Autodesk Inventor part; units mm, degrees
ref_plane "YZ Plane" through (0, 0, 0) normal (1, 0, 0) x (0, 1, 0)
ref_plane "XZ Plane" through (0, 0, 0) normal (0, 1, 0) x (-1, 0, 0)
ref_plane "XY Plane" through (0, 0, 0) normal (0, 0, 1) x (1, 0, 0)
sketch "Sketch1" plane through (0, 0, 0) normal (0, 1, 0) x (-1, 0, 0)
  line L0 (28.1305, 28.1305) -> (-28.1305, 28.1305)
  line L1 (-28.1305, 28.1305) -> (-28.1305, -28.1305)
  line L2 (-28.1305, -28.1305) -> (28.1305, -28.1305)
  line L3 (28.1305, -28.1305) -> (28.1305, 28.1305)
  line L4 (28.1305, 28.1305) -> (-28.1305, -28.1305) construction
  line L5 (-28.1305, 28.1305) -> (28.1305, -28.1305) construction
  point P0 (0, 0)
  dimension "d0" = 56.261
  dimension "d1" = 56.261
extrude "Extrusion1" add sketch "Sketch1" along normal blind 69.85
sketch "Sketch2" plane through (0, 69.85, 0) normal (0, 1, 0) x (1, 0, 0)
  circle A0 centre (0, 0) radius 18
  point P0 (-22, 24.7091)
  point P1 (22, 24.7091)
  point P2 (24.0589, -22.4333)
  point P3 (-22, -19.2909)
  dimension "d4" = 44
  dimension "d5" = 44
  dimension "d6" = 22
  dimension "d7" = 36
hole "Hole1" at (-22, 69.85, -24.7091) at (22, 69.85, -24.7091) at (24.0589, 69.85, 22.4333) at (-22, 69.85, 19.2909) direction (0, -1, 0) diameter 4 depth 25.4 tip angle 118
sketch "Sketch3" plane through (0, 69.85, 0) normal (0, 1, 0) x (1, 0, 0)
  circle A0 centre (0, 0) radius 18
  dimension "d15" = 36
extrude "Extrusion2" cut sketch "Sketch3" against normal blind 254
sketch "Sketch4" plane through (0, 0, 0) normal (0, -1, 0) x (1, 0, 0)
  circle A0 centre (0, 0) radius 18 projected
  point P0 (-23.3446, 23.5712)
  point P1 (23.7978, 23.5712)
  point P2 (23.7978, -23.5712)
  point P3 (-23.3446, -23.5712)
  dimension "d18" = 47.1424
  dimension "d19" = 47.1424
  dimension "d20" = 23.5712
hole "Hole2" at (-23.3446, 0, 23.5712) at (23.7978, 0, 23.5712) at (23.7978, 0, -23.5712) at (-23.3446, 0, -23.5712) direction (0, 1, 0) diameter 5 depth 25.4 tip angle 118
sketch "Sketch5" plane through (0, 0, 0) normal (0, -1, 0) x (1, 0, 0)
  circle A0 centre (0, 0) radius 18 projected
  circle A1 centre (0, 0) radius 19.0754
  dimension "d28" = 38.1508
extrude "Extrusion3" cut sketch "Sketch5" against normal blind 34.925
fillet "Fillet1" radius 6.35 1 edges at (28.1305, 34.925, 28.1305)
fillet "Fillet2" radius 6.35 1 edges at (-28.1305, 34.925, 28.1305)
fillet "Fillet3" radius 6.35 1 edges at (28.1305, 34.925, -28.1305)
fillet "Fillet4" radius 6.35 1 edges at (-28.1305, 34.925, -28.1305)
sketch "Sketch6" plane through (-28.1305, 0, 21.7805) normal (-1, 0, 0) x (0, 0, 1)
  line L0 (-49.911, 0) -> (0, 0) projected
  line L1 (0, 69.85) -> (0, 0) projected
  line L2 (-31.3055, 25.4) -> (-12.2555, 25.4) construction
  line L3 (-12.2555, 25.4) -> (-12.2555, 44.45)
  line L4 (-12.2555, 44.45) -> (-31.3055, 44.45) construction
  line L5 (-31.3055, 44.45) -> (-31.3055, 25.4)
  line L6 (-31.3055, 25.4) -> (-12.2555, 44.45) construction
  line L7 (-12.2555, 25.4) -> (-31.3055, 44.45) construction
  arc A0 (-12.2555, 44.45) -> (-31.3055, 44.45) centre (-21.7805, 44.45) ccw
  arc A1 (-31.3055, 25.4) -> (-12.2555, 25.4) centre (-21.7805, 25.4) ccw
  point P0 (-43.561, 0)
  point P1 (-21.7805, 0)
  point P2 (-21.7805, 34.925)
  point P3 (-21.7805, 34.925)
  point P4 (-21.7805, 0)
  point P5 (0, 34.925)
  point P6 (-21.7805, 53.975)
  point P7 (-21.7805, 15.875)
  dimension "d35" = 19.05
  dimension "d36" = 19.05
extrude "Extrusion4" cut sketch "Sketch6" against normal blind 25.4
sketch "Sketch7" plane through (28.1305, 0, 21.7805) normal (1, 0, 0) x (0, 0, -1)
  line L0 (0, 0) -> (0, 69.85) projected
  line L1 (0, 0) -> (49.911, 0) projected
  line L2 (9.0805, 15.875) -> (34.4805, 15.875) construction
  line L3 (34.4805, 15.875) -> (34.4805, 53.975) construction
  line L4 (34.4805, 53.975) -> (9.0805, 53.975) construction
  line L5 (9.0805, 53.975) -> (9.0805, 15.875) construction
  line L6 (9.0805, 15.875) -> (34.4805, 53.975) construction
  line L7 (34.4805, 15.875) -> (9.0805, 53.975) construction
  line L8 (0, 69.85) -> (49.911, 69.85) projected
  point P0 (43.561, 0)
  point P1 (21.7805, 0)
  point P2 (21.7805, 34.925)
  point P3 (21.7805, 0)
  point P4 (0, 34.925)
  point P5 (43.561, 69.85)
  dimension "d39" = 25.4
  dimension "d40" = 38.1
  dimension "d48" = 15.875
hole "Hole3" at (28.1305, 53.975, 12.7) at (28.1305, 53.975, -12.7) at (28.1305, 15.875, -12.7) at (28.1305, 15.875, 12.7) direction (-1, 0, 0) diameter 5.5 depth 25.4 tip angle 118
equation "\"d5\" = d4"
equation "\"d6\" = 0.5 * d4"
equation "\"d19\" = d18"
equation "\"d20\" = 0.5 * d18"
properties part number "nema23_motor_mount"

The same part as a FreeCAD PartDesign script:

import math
import FreeCAD as App
import Part
import Sketcher

V = App.Vector
Q = App.Units.Quantity


def edges_at(feature, points):
    """Names of the edges that pass closest to the given points."""
    edges = feature.Shape.Edges
    near = lambda p: min(range(len(edges)), key=lambda i: edges[i].distToShape(Part.Vertex(*p))[0])
    return sorted({f"Edge{near(p) + 1}" for p in points})


def add_polygon(sketch, points):
    """Adds a closed chain of lines whose ends are joined by coincident constraints."""
    first, n = sketch.GeometryCount, len(points)
    for a, b in zip(points, points[1:] + points[:1]):
        sketch.addGeometry(Part.LineSegment(App.Vector(*a, 0), App.Vector(*b, 0)), False)
    for i in range(n):
        sketch.addConstraint(Sketcher.Constraint("Coincident", first + i, 2, first + (i + 1) % n, 1))

doc = App.newDocument("Part")
body = doc.addObject("PartDesign::Body", "Body")

# Sketch on XZ plane
sketch1 = doc.addObject("Sketcher::SketchObject", "Sketch")
body.addObject(sketch1)
sketch1.AttachmentSupport = (doc.XZ_Plane, [""])
sketch1.MapMode = "FlatFace"
add_polygon(sketch1, [(-28, -28), (-28, 28), (28, 28), (28, -28)])  # lines 0-3
sketch1.addConstraint(Sketcher.Constraint("Vertical", 0))
sketch1.addConstraint(Sketcher.Constraint("Horizontal", 1))
sketch1.addConstraint(Sketcher.Constraint("Vertical", 2))
sketch1.addConstraint(Sketcher.Constraint("Horizontal", 3))
sketch1.addConstraint(Sketcher.Constraint("Symmetric", 0, 2, 2, 2, -1, 1))
sketch1.addConstraint(Sketcher.Constraint("Equal", 3, 0))
sketch1.addConstraint(Sketcher.Constraint("DistanceX", 1, 1, 1, 2, Q("2.215 in")))
pad1 = doc.addObject("PartDesign::Pad", "Pad")
body.addObject(pad1)
pad1.Profile = sketch1
pad1.Length = Q("2.75 in")
pad1.Reversed = True

# Sketch on XZ plane
sketch2 = doc.addObject("Sketcher::SketchObject", "Sketch001")
body.addObject(sketch2)
sketch2.AttachmentSupport = (doc.XZ_Plane, [""])
sketch2.MapMode = "FlatFace"
sketch2.AttachmentOffset = App.Placement(V(0, 0, -2.75 * 25.4), App.Rotation())
sketch2.addGeometry(Part.Circle(V(-22, -24.7, 0), V(0, 0, 1), 2), False)
sketch2.addGeometry(Part.Circle(V(22, -24.7, 0), V(0, 0, 1), 2), False)
sketch2.addGeometry(Part.Circle(V(24.1, 22.4, 0), V(0, 0, 1), 2), False)
sketch2.addGeometry(Part.Circle(V(-22, 19.3, 0), V(0, 0, 1), 2), False)
sketch2.addConstraint(Sketcher.Constraint("Equal", 0, 1))
sketch2.addConstraint(Sketcher.Constraint("Equal", 1, 2))
sketch2.addConstraint(Sketcher.Constraint("Equal", 2, 3))
sketch2.addConstraint(Sketcher.Constraint("Symmetric", 0, 3, 1, 3, -2))
sketch2.addConstraint(Sketcher.Constraint("Vertical", 0, 3, 3, 3))
sketch2.addConstraint(Sketcher.Constraint("Diameter", 0, Q("4 mm")))
sketch2.addConstraint(Sketcher.Constraint("DistanceY", 1, 3, 2, 3, Q("1.856 in")))
sketch2.addConstraint(Sketcher.Constraint("DistanceY", 0, 3, -1, 1, Q("0.9728 in")))
sketch2.addConstraint(Sketcher.Constraint("DistanceX", -1, 1, 2, 3, Q("0.9472 in")))
sketch2.addConstraint(Sketcher.Constraint("DistanceX", 0, 3, -1, 1, Q("22 mm")))
sketch2.addConstraint(Sketcher.Constraint("DistanceY", -1, 1, 3, 3, Q("0.7594882 in")))
doc.recompute()
hole = doc.addObject("PartDesign::Hole", "Hole")
body.addObject(hole)
hole.Profile = sketch2
hole.ThreadType = "None"
hole.Diameter = 4
hole.DepthType = "Dimension"
hole.Depth = Q("1 in")
hole.DrillPoint = "Angled"
hole.DrillPointAngle = 118
hole.Reversed = True

# Sketch on XZ plane
sketch3 = doc.addObject("Sketcher::SketchObject", "Sketch002")
body.addObject(sketch3)
sketch3.AttachmentSupport = (doc.XZ_Plane, [""])
sketch3.MapMode = "FlatFace"
sketch3.AttachmentOffset = App.Placement(V(0, 0, -2.75 * 25.4), App.Rotation())
sketch3.addGeometry(Part.Circle(V(0, 0, 0), V(0, 0, 1), 18), False)
sketch3.addConstraint(Sketcher.Constraint("Coincident", 0, 3, -1, 1))
sketch3.addConstraint(Sketcher.Constraint("Diameter", 0, Q("36 mm")))
pocket1 = doc.addObject("PartDesign::Pocket", "Pocket")
body.addObject(pocket1)
pocket1.Profile = sketch3
pocket1.Length = Q("10 in")
pocket1.Reversed = True

# Sketch on XZ plane
sketch4 = doc.addObject("Sketcher::SketchObject", "Sketch003")
body.addObject(sketch4)
sketch4.AttachmentSupport = (doc.XZ_Plane, [""])
sketch4.MapMode = "FlatFace"
sketch4.addGeometry(Part.Circle(V(-23.3, 23.6, 0), V(0, 0, 1), 2.5), False)
sketch4.addGeometry(Part.Circle(V(23.8, 23.6, 0), V(0, 0, 1), 2.5), False)
sketch4.addGeometry(Part.Circle(V(23.8, -23.6, 0), V(0, 0, 1), 2.5), False)
sketch4.addGeometry(Part.Circle(V(-23.3, -23.6, 0), V(0, 0, 1), 2.5), False)
sketch4.addConstraint(Sketcher.Constraint("Equal", 0, 1))
sketch4.addConstraint(Sketcher.Constraint("Equal", 1, 2))
sketch4.addConstraint(Sketcher.Constraint("Equal", 2, 3))
sketch4.addConstraint(Sketcher.Constraint("Symmetric", 1, 3, 2, 3, -1))
sketch4.addConstraint(Sketcher.Constraint("Symmetric", 0, 3, 3, 3, -1))
sketch4.addConstraint(Sketcher.Constraint("Horizontal", 0, 3, 1, 3))
sketch4.addConstraint(Sketcher.Constraint("Diameter", 0, Q("5 mm")))
sketch4.addConstraint(Sketcher.Constraint("DistanceY", -1, 1, 0, 3, Q("0.928 in")))
sketch4.addConstraint(Sketcher.Constraint("DistanceX", 0, 3, 1, 3, Q("1.856 in")))
sketch4.addConstraint(Sketcher.Constraint("DistanceX", 0, 3, -1, 1, Q("23.3446 mm")))
doc.recompute()
hole2 = doc.addObject("PartDesign::Hole", "Hole001")
body.addObject(hole2)
hole2.Profile = sketch4
hole2.ThreadType = "None"
hole2.Diameter = 5
hole2.DepthType = "Dimension"
hole2.Depth = Q("1 in")
hole2.DrillPoint = "Angled"
hole2.DrillPointAngle = 118

# Sketch on XZ plane
sketch5 = doc.addObject("Sketcher::SketchObject", "Sketch004")
body.addObject(sketch5)
sketch5.AttachmentSupport = (doc.XZ_Plane, [""])
sketch5.MapMode = "FlatFace"
sketch5.addGeometry(Part.Circle(V(0, 0, 0), V(0, 0, 1), 19), False)
sketch5.addGeometry(Part.Circle(V(0, 0, 0), V(0, 0, 1), 18), False)
sketch5.addConstraint(Sketcher.Constraint("Coincident", 0, 3, -1, 1))
sketch5.addConstraint(Sketcher.Constraint("Coincident", 1, 3, -1, 1))
sketch5.addConstraint(Sketcher.Constraint("Diameter", 0, Q("1.502 in")))
sketch5.addConstraint(Sketcher.Constraint("Diameter", 1, Q("36 mm")))
pocket2 = doc.addObject("PartDesign::Pocket", "Pocket001")
body.addObject(pocket2)
pocket2.Profile = sketch5
pocket2.Length = Q("1.375 in")
doc.recompute()

fillet = doc.addObject("PartDesign::Fillet", "Fillet")
body.addObject(fillet)
fillet.Base = (pocket2, edges_at(pocket2, [(28.131, 34.925, 28.131)]))
fillet.Radius = Q("0.25 in")
doc.recompute()

fillet2 = doc.addObject("PartDesign::Fillet", "Fillet001")
body.addObject(fillet2)
fillet2.Base = (fillet, edges_at(fillet, [(-28.131, 34.925, 28.131)]))
fillet2.Radius = Q("0.25 in")
doc.recompute()

fillet3 = doc.addObject("PartDesign::Fillet", "Fillet002")
body.addObject(fillet3)
fillet3.Base = (fillet2, edges_at(fillet2, [(28.131, 34.925, -28.131)]))
fillet3.Radius = Q("0.25 in")
doc.recompute()

fillet4 = doc.addObject("PartDesign::Fillet", "Fillet003")
body.addObject(fillet4)
fillet4.Base = (fillet3, edges_at(fillet3, [(-28.131, 34.925, -28.131)]))
fillet4.Radius = Q("0.25 in")

# Sketch on YZ plane
sketch6 = doc.addObject("Sketcher::SketchObject", "Sketch005")
body.addObject(sketch6)
sketch6.AttachmentSupport = (doc.YZ_Plane, [""])
sketch6.MapMode = "FlatFace"
sketch6.AttachmentOffset = App.Placement(V(0, 0, -1.1075 * 25.4), App.Rotation())
sketch6.addGeometry(Part.ArcOfCircle(Part.Circle(V(25, 0, 0), V(0, 0, 1), 10), math.radians(90), math.radians(270)), False)
sketch6.addGeometry(Part.LineSegment(V(25, 10, 0), V(44, 10, 0)), False)
sketch6.addGeometry(Part.ArcOfCircle(Part.Circle(V(44, 0, 0), V(0, 0, 1), 10), math.radians(-90), math.radians(90)), False)
sketch6.addGeometry(Part.LineSegment(V(44, -10, 0), V(25, -10, 0)), False)
sketch6.addConstraint(Sketcher.Constraint("Tangent", 0, 1, 1, 1))
sketch6.addConstraint(Sketcher.Constraint("Tangent", 1, 2, 2, 2))
sketch6.addConstraint(Sketcher.Constraint("Tangent", 2, 1, 3, 1))
sketch6.addConstraint(Sketcher.Constraint("Tangent", 3, 2, 0, 2))
sketch6.addConstraint(Sketcher.Constraint("Horizontal", 1))
sketch6.addConstraint(Sketcher.Constraint("Horizontal", 3))
sketch6.addConstraint(Sketcher.Constraint("PointOnObject", 0, 3, -1))
sketch6.addConstraint(Sketcher.Constraint("Radius", 0, Q("0.375 in")))
sketch6.addConstraint(Sketcher.Constraint("DistanceX", 1, 1, 1, 2, Q("0.75 in")))
sketch6.addConstraint(Sketcher.Constraint("DistanceX", -1, 1, 0, 3, Q("1 in")))
pocket3 = doc.addObject("PartDesign::Pocket", "Pocket002")
body.addObject(pocket3)
pocket3.Profile = sketch6
pocket3.Length = Q("1 in")
pocket3.Reversed = True

# Sketch on YZ plane
sketch7 = doc.addObject("Sketcher::SketchObject", "Sketch006")
body.addObject(sketch7)
sketch7.AttachmentSupport = (doc.YZ_Plane, [""])
sketch7.MapMode = "FlatFace"
sketch7.AttachmentOffset = App.Placement(V(0, 0, 1.1075 * 25.4), App.Rotation())
sketch7.addGeometry(Part.Circle(V(54, 12.7, 0), V(0, 0, 1), 2.8), False)
sketch7.addGeometry(Part.Circle(V(54, -12.7, 0), V(0, 0, 1), 2.8), False)
sketch7.addGeometry(Part.Circle(V(15.9, -12.7, 0), V(0, 0, 1), 2.8), False)
sketch7.addGeometry(Part.Circle(V(15.9, 12.7, 0), V(0, 0, 1), 2.8), False)
sketch7.addConstraint(Sketcher.Constraint("Equal", 0, 1))
sketch7.addConstraint(Sketcher.Constraint("Equal", 1, 2))
sketch7.addConstraint(Sketcher.Constraint("Equal", 2, 3))
sketch7.addConstraint(Sketcher.Constraint("Symmetric", 0, 3, 1, 3, -1))
sketch7.addConstraint(Sketcher.Constraint("Symmetric", 2, 3, 3, 3, -1))
sketch7.addConstraint(Sketcher.Constraint("Horizontal", 1, 3, 2, 3))
sketch7.addConstraint(Sketcher.Constraint("DistanceY", 1, 3, 0, 3, Q("1 in")))
sketch7.addConstraint(Sketcher.Constraint("DistanceX", 2, 3, 1, 3, Q("1.5 in")))
sketch7.addConstraint(Sketcher.Constraint("Diameter", 0, Q("5.5 mm")))
sketch7.addConstraint(Sketcher.Constraint("DistanceX", -1, 1, 0, 3, Q("2.125 in")))
doc.recompute()
hole3 = doc.addObject("PartDesign::Hole", "Hole002")
body.addObject(hole3)
hole3.Profile = sketch7
hole3.ThreadType = "None"
hole3.Diameter = 5.5
hole3.DepthType = "Dimension"
hole3.Depth = Q("1 in")
hole3.DrillPoint = "Angled"
hole3.DrillPointAngle = 118

doc.recompute()
